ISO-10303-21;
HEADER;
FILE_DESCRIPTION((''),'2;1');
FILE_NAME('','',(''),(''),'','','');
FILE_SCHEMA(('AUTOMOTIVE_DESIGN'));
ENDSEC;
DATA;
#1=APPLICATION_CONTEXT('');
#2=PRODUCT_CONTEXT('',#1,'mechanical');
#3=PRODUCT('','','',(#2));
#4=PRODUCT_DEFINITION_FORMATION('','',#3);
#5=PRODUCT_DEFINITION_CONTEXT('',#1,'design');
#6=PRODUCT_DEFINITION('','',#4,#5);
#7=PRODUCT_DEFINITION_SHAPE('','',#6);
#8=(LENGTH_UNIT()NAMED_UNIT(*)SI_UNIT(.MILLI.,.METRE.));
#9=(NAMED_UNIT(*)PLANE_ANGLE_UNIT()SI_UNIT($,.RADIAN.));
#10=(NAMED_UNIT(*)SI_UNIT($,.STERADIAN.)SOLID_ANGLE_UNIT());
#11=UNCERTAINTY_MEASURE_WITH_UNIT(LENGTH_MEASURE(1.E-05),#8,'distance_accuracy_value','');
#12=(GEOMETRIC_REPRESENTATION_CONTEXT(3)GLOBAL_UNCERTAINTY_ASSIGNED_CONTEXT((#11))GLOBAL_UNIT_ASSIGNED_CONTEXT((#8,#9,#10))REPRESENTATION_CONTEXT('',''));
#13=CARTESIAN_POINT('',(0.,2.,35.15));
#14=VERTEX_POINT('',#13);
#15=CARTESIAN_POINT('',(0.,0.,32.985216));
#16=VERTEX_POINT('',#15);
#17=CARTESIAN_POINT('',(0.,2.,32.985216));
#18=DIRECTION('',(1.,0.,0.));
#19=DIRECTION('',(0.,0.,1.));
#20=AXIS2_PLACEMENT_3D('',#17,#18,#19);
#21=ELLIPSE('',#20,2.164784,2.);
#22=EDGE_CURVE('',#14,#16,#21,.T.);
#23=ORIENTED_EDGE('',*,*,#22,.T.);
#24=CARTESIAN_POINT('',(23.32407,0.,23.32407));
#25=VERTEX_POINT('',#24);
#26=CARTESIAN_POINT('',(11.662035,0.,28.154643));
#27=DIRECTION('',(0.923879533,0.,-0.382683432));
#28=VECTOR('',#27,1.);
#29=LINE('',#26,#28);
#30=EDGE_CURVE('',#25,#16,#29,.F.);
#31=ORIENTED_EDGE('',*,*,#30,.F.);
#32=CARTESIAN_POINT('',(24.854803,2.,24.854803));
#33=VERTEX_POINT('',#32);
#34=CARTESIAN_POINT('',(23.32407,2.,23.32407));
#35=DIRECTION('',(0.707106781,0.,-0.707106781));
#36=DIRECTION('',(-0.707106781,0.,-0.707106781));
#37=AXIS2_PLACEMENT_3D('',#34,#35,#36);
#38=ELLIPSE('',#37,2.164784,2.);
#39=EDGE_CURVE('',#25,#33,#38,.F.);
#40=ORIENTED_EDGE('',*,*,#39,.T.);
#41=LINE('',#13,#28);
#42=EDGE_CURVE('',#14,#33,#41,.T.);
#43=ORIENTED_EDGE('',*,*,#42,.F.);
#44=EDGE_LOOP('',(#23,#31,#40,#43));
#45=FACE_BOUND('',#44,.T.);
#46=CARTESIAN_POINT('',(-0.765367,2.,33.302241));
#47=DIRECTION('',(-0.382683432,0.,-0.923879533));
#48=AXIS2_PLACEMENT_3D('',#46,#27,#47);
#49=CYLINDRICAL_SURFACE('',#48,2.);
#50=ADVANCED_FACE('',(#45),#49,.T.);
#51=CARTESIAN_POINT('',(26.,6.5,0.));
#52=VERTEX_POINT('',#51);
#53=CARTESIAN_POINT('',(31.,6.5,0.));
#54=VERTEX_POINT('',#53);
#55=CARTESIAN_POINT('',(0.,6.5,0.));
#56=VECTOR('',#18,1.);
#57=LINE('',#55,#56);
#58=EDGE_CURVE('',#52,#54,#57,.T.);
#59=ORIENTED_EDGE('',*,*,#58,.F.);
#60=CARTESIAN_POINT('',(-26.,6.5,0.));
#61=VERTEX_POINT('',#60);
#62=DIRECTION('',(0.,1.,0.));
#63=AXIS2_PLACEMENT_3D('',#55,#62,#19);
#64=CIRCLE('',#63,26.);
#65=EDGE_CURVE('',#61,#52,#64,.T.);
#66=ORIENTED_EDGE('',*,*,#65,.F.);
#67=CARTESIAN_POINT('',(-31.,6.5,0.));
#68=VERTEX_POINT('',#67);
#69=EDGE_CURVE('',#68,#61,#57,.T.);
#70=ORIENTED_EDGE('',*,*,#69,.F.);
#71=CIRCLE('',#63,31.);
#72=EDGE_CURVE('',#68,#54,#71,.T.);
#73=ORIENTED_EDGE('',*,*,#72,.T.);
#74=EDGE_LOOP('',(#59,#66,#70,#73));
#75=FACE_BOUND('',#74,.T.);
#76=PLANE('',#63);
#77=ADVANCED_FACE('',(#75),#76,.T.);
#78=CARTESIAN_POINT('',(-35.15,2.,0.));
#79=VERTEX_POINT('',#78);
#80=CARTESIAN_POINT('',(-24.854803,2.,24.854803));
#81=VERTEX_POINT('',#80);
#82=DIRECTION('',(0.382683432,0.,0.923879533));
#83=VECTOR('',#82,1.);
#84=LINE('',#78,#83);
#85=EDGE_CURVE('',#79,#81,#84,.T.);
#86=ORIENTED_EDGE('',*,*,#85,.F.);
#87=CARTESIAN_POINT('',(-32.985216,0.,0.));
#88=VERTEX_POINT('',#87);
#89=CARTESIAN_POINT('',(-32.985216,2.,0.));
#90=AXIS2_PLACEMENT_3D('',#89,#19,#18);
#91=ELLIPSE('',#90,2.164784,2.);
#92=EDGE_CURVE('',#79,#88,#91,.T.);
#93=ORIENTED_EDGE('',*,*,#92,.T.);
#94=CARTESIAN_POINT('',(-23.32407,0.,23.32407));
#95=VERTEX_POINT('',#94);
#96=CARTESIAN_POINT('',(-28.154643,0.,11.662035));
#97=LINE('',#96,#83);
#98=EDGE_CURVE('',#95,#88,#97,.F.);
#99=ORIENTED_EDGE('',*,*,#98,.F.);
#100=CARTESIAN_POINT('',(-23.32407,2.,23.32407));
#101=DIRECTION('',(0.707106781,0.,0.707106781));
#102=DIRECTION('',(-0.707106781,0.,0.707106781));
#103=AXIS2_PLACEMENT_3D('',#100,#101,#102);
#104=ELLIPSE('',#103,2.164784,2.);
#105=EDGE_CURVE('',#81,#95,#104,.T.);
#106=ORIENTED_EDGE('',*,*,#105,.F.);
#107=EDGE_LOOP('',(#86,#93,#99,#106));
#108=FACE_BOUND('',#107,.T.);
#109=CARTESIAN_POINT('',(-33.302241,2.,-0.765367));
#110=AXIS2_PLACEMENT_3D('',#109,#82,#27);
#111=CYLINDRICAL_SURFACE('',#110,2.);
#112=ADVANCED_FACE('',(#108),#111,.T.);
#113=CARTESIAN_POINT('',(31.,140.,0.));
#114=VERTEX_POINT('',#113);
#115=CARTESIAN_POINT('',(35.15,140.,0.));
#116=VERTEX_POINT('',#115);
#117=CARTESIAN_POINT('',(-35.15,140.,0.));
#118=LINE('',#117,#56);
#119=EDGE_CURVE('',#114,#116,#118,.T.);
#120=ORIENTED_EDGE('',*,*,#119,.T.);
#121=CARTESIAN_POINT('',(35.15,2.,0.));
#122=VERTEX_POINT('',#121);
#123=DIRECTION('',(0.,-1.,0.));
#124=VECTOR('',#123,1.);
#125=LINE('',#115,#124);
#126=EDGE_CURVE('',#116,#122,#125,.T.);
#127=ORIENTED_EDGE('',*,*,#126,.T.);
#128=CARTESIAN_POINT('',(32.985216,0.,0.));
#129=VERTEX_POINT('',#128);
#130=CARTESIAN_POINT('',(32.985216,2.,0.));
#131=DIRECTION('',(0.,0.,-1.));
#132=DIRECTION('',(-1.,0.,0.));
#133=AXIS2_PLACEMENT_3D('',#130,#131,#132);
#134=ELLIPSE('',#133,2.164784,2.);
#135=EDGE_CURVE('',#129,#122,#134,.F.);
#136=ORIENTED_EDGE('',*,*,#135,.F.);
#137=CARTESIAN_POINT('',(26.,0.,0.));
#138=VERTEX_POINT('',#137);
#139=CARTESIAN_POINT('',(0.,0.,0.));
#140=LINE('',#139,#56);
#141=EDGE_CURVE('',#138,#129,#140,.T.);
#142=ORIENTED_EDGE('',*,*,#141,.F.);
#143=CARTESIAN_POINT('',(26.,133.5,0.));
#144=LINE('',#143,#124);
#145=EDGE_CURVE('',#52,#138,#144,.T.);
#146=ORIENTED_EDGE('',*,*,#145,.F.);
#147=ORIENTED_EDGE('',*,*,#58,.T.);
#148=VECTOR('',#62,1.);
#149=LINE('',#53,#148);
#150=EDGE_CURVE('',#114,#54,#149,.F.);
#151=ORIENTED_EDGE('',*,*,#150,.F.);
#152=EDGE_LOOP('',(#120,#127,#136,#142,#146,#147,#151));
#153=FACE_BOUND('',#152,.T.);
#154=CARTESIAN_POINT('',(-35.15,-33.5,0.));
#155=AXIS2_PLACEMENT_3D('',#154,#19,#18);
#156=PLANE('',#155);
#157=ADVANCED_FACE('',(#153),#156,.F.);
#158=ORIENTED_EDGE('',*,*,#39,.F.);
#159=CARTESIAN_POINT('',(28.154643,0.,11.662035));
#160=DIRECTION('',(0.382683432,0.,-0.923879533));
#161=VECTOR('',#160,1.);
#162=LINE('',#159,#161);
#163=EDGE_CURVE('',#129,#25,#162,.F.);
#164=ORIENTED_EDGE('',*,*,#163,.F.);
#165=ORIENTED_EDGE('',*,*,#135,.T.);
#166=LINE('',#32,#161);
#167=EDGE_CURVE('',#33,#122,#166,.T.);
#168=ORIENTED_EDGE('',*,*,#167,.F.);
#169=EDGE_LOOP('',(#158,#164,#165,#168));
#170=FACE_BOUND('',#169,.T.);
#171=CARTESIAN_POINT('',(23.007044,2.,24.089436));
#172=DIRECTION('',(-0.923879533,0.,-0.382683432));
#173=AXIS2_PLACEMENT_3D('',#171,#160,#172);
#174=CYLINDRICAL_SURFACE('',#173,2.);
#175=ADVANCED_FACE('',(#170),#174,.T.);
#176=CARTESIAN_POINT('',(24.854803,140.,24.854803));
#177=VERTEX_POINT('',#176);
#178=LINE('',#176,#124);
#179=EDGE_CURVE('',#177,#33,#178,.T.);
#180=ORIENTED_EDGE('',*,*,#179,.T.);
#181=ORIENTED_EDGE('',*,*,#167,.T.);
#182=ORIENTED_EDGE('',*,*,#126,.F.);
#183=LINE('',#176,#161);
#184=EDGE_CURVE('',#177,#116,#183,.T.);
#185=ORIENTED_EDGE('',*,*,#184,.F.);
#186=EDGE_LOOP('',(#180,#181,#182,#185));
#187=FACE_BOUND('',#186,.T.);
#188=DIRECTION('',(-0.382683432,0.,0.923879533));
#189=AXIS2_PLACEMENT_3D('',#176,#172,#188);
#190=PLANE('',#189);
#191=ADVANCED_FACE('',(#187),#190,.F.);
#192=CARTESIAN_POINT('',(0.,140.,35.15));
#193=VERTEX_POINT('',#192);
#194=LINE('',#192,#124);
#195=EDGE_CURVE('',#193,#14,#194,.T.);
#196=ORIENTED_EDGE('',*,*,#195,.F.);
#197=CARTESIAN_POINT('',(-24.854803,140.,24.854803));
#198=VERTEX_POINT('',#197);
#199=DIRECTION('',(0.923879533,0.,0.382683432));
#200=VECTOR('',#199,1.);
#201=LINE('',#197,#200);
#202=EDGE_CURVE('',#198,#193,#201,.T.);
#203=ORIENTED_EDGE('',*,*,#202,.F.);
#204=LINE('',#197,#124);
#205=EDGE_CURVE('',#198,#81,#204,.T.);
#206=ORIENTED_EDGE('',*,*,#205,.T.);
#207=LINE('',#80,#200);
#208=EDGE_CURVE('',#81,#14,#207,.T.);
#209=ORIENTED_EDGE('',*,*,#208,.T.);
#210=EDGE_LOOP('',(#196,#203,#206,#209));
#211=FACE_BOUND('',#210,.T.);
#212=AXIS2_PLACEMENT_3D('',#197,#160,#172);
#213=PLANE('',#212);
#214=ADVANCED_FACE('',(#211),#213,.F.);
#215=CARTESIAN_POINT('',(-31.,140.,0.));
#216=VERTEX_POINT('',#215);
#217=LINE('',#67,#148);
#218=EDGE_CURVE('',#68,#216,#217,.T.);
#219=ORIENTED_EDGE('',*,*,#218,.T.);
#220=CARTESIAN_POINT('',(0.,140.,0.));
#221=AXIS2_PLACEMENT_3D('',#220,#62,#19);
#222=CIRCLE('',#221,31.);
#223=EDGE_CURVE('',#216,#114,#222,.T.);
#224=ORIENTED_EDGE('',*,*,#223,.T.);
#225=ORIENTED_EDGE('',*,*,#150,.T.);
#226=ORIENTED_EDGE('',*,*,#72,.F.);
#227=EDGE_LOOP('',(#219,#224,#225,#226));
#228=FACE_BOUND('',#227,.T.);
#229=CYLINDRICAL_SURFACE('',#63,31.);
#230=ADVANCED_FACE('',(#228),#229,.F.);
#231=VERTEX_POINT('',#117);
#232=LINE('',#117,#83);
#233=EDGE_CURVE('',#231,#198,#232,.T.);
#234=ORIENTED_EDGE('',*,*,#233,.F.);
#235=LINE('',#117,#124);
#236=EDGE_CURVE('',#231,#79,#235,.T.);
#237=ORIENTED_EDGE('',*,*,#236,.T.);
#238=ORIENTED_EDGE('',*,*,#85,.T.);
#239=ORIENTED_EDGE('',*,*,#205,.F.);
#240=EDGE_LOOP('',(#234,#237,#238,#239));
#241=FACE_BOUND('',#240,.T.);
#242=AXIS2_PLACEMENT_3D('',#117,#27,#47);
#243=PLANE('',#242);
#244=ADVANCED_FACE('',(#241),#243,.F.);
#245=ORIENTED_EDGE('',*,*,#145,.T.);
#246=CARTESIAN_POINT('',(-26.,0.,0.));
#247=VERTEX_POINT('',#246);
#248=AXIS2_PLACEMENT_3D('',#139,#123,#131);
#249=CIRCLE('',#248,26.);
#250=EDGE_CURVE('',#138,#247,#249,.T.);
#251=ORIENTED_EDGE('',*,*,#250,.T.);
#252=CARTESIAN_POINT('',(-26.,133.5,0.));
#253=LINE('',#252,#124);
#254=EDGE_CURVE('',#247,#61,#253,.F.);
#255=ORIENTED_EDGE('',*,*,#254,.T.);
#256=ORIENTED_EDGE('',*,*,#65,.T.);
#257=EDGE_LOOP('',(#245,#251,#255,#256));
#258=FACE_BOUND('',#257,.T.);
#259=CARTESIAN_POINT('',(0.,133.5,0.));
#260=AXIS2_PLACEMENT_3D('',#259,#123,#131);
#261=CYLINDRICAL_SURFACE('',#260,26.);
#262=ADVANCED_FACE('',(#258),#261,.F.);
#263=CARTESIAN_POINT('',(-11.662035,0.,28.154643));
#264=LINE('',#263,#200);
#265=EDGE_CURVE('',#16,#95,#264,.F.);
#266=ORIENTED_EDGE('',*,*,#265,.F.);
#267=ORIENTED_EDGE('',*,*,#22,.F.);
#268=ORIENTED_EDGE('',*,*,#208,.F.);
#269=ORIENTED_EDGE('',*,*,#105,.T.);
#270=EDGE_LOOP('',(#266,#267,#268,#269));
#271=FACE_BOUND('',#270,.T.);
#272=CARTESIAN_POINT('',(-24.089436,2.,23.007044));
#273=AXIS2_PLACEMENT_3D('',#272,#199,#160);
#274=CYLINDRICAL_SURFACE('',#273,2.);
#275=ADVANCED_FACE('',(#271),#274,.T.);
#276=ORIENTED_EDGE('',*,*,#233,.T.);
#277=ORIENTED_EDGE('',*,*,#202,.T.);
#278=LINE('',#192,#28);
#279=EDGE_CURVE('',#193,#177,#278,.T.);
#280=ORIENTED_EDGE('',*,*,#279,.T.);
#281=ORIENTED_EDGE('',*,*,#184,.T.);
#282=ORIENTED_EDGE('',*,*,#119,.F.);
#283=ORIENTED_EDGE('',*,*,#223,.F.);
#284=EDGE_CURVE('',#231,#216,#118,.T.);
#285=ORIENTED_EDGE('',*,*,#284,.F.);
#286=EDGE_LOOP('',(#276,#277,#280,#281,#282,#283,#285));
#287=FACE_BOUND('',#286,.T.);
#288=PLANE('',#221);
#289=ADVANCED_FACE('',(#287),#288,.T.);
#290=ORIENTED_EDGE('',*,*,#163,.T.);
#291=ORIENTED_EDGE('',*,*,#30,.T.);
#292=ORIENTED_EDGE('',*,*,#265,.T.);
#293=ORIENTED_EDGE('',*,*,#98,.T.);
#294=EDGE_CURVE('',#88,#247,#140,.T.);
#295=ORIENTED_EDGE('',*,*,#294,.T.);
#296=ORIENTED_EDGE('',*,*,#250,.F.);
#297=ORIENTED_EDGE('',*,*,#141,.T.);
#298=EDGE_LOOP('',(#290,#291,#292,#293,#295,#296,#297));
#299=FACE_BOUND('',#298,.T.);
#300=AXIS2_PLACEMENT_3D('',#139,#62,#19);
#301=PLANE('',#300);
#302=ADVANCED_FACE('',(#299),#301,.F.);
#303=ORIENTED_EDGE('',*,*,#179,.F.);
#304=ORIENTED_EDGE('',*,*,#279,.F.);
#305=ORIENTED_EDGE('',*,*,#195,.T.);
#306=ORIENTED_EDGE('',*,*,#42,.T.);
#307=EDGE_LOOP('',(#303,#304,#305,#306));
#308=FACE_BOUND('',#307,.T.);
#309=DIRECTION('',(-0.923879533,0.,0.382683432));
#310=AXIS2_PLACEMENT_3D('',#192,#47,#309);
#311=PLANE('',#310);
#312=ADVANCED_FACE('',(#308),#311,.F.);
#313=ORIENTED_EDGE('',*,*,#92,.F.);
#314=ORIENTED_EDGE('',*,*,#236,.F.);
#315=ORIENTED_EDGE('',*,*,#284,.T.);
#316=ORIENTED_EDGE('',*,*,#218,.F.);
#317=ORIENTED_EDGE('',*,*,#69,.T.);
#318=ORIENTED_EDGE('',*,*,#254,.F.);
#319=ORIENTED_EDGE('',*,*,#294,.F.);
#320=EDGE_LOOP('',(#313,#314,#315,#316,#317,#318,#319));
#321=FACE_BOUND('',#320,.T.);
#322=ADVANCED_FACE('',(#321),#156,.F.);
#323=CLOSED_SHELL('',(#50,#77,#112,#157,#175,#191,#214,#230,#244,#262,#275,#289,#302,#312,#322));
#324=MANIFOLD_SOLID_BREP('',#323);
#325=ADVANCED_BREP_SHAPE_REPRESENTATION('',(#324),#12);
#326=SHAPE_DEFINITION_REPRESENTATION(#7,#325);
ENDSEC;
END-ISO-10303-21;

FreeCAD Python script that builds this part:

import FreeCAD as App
import Part
import Sketcher
from FreeCAD import Vector
Q = App.Units.Quantity


def edges_at(feature, points):
    """Names of the edges that pass closest to the given points."""
    edges = feature.Shape.Edges
    near = lambda p: min(range(len(edges)), key=lambda i: edges[i].distToShape(Part.Vertex(*p))[0])
    return sorted({f"Edge{near(p) + 1}" for p in points})


def add_polygon(sketch, points):
    """Adds a closed chain of lines whose ends are joined by coincident constraints."""
    first, n = sketch.GeometryCount, len(points)
    for a, b in zip(points, points[1:] + points[:1]):
        sketch.addGeometry(Part.LineSegment(App.Vector(*a, 0), App.Vector(*b, 0)), False)
    for i in range(n):
        sketch.addConstraint(Sketcher.Constraint("Coincident", first + i, 2, first + (i + 1) % n, 1))

doc = App.newDocument("Part")
params = doc.addObject("Spreadsheet::Sheet", "Params")
for row, (alias, value) in enumerate([
    ("pad1_length", "140 mm"),
    ("sketch2_diameter", "62 mm"),
    ("pocket1_length", "133.5 mm"),
    ("sketch3_diameter", "52 mm"),
    ("pocket2_length", "133.5 mm"),
    ("fillet_radius", "2 mm"),
    ("sketch4_width", "70.3 mm"),
    ("pocket3_length", "173.5 mm"),
], start=1):
    params.set(f"A{row}", alias)
    params.set(f"B{row}", "=" + value)
    params.setAlias(f"B{row}", alias)

body = doc.addObject("PartDesign::Body", "Body")

# Sketch on XZ plane
sketch1 = body.newObject("Sketcher::SketchObject", "Sketch")
sketch1.AttachmentSupport = (doc.getObject("XZ_Plane"), [""])
sketch1.MapMode = "FlatFace"
add_polygon(sketch1, [(35, 0), (25, -25), (0, -35), (-25, -25), (-35, 0), (-25, 25), (0, 35), (25, 25)])  # lines 0-7
sketch1.addConstraint([
    Sketcher.Constraint("Symmetric", 0, 2, 4, 2, -1, 1),
    Sketcher.Constraint("Symmetric", 1, 2, 5, 2, -1, 1),
    Sketcher.Constraint("Symmetric", 2, 2, 6, 2, -1, 1),
    Sketcher.Constraint("Symmetric", 3, 2, 7, 2, -1, 1),
    Sketcher.Constraint("Symmetric", 0, 2, 2, 2, -2),
    Sketcher.Constraint("PointOnObject", 1, 2, -2),
    Sketcher.Constraint("PointOnObject", 3, 2, -1),
    Sketcher.Constraint("Perpendicular", 0, 2),
    Sketcher.Constraint("Equal", 0, 1),
    Sketcher.Constraint("Angle", 0, Q("-112.5 deg")),
    Sketcher.Constraint("DistanceY", 1, 2, 5, 2, Q("70.3 mm")),
])
pad1 = body.newObject("PartDesign::Pad", "Pad")
pad1.Profile = sketch1
pad1.setExpression("Length", "Params.pad1_length")
pad1.Reversed = True

# Sketch on XZ plane
sketch2 = body.newObject("Sketcher::SketchObject", "Sketch001")
sketch2.AttachmentSupport = (doc.getObject("XZ_Plane"), [""])
sketch2.MapMode = "FlatFace"
sketch2.AttachmentOffset = App.Placement(Vector(0, 0, -140), App.Rotation())
sketch2.addGeometry(Part.Circle(Vector(0, 0, 0), Vector(0, 0, 1), 31), False)
sketch2.addConstraint([
    Sketcher.Constraint("Coincident", 0, 3, -1, 1),
    Sketcher.Constraint("Diameter", 0, Q("62 mm")),
])
sketch2.setExpression("Constraints[1]", "Params.sketch2_diameter")
pocket1 = body.newObject("PartDesign::Pocket", "Pocket")
pocket1.Profile = sketch2
pocket1.setExpression("Length", "Params.pocket1_length")
pocket1.Reversed = True

# Sketch on XZ plane
sketch3 = body.newObject("Sketcher::SketchObject", "Sketch002")
sketch3.AttachmentSupport = (doc.getObject("XZ_Plane"), [""])
sketch3.MapMode = "FlatFace"
sketch3.addGeometry(Part.Circle(Vector(0, 0, 0), Vector(0, 0, 1), 26), False)
sketch3.addConstraint([
    Sketcher.Constraint("Coincident", 0, 3, -1, 1),
    Sketcher.Constraint("Diameter", 0, Q("52 mm")),
])
sketch3.setExpression("Constraints[1]", "Params.sketch3_diameter")
pocket2 = body.newObject("PartDesign::Pocket", "Pocket001")
pocket2.Profile = sketch3
pocket2.setExpression("Length", "Params.pocket2_length")
doc.recompute()

fillet = body.newObject("PartDesign::Fillet", "Fillet")
fillet.Base = (pocket2, edges_at(pocket2, [
    (30.002, 0, -12.427),
    (30.002, 0, 12.427),
    (12.427, 0, 30.002),
    (-12.427, 0, 30.002),
    (-30.002, 0, 12.427),
    (-30.002, 0, -12.427),
    (-12.427, 0, -30.002),
    (12.427, 0, -30.002),
]))
fillet.setExpression("Radius", "Params.fillet_radius")

# Sketch on XZ plane
sketch4 = body.newObject("Sketcher::SketchObject", "Sketch003")
sketch4.AttachmentSupport = (doc.getObject("XZ_Plane"), [""])
sketch4.MapMode = "FlatFace"
sketch4.AttachmentOffset = App.Placement(Vector(0, 0, -140), App.Rotation())
add_polygon(sketch4, [(-35, 0), (35, 0), (25, -25), (0, -35), (-25, -25)])  # lines 0-4
sketch4.addConstraint([
    Sketcher.Constraint("Horizontal", 0),
    Sketcher.Constraint("Symmetric", 0, 2, 4, 2, -1, 1),
    Sketcher.Constraint("Symmetric", 1, 2, 3, 2, -2),
    Sketcher.Constraint("PointOnObject", 2, 2, -2),
    Sketcher.Constraint("Perpendicular", 1, 3),
    Sketcher.Constraint("Equal", 1, 2),
    Sketcher.Constraint("DistanceX", 0, 1, 0, 2, Q("70.3 mm")),
    Sketcher.Constraint("Angle", 1, Q("-112.5 deg")),
])
sketch4.setExpression("Constraints[11]", "Params.sketch4_width")
pocket3 = body.newObject("PartDesign::Pocket", "Pocket002")
pocket3.Profile = sketch4
pocket3.setExpression("Length", "Params.pocket3_length")
pocket3.Reversed = True

doc.recompute()
